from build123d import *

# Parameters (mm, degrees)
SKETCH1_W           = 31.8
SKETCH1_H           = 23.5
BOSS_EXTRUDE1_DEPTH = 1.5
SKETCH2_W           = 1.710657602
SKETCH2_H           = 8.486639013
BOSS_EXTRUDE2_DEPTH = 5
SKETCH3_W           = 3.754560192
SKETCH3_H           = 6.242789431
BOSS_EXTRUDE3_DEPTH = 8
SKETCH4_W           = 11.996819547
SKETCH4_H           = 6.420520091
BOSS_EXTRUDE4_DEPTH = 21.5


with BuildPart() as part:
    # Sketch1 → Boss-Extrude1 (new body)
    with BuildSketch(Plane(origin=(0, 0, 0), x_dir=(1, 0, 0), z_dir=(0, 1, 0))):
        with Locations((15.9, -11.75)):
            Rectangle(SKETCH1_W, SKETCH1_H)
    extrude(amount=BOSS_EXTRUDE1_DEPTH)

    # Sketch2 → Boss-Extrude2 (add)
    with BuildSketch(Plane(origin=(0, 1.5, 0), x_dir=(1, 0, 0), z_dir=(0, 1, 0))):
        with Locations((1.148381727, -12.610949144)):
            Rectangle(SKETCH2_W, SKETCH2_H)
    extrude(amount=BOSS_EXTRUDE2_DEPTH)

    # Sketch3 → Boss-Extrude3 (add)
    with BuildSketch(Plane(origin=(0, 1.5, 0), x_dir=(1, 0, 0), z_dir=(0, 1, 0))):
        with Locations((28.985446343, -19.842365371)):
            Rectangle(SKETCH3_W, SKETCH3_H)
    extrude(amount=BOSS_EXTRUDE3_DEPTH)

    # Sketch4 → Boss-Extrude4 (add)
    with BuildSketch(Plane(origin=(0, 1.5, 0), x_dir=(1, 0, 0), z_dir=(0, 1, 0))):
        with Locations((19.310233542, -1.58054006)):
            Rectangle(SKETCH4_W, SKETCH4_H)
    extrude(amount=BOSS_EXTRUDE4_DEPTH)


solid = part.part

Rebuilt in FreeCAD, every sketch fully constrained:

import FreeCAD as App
import Part
import Sketcher
from FreeCAD import Vector

doc = App.newDocument("Part")
params = doc.addObject("Spreadsheet::Sheet", "Params")
for row, (alias, value) in enumerate([
    ("sketch1_width", "31.8 mm"),
    ("sketch1_height", "23.5 mm"),
    ("pad1_length", "1.5 mm"),
    ("pad2_length", "5 mm"),
    ("pad3_length", "8 mm"),
    ("pad4_length", "21.5 mm"),
], start=1):
    params.set(f"A{row}", alias)
    params.set(f"B{row}", "=" + value)
    params.setAlias(f"B{row}", alias)

body = doc.addObject("PartDesign::Body", "Body")

sketch1 = body.newObject("Sketcher::SketchObject", "Sketch")
sketch1.AttachmentSupport = (doc.getObject("XZ_Plane"), [""])
sketch1.MapMode = "FlatFace"
sketch1.addGeometry(Part.LineSegment(Vector(0, 0, 0), Vector(0, 24, 0)), False)
sketch1.addGeometry(Part.LineSegment(Vector(0, 24, 0), Vector(32, 24, 0)), False)
sketch1.addGeometry(Part.LineSegment(Vector(32, 24, 0), Vector(32, 0, 0)), False)
sketch1.addGeometry(Part.LineSegment(Vector(32, 0, 0), Vector(0, 0, 0)), False)
sketch1.addConstraint(Sketcher.Constraint("Coincident", 0, 2, 1, 1))
sketch1.addConstraint(Sketcher.Constraint("Coincident", 1, 2, 2, 1))
sketch1.addConstraint(Sketcher.Constraint("Coincident", 2, 2, 3, 1))
sketch1.addConstraint(Sketcher.Constraint("Coincident", 3, 2, 0, 1))
sketch1.addConstraint(Sketcher.Constraint("Vertical", 0))
sketch1.addConstraint(Sketcher.Constraint("Horizontal", 1))
sketch1.addConstraint(Sketcher.Constraint("Vertical", 2))
sketch1.addConstraint(Sketcher.Constraint("Horizontal", 3))
sketch1.addConstraint(Sketcher.Constraint("Coincident", 3, 2, -1, 1))
sketch1.addConstraint(Sketcher.Constraint("DistanceX", 1, 1, 1, 2, 31.8))
sketch1.addConstraint(Sketcher.Constraint("DistanceY", 0, 1, 0, 2, 23.5))
sketch1.setExpression("Constraints[9]", "Params.sketch1_width")
sketch1.setExpression("Constraints[10]", "Params.sketch1_height")
pad1 = body.newObject("PartDesign::Pad", "Pad")
pad1.Profile = sketch1
pad1.setExpression("Length", "Params.pad1_length")
pad1.Reversed = True

sketch2 = body.newObject("Sketcher::SketchObject", "Sketch001")
sketch2.AttachmentSupport = (doc.getObject("XZ_Plane"), [""])
sketch2.MapMode = "FlatFace"
sketch2.AttachmentOffset = App.Placement(Vector(0, 0, -1.5), App.Rotation())
sketch2.addGeometry(Part.LineSegment(Vector(0.3, 8.4, 0), Vector(0.3, 16.9, 0)), False)
sketch2.addGeometry(Part.LineSegment(Vector(0.3, 16.9, 0), Vector(2, 16.9, 0)), False)
sketch2.addGeometry(Part.LineSegment(Vector(2, 16.9, 0), Vector(2, 8.4, 0)), False)
sketch2.addGeometry(Part.LineSegment(Vector(2, 8.4, 0), Vector(0.3, 8.4, 0)), False)
sketch2.addConstraint(Sketcher.Constraint("Coincident", 0, 2, 1, 1))
sketch2.addConstraint(Sketcher.Constraint("Coincident", 1, 2, 2, 1))
sketch2.addConstraint(Sketcher.Constraint("Coincident", 2, 2, 3, 1))
sketch2.addConstraint(Sketcher.Constraint("Coincident", 3, 2, 0, 1))
sketch2.addConstraint(Sketcher.Constraint("Vertical", 0))
sketch2.addConstraint(Sketcher.Constraint("Horizontal", 1))
sketch2.addConstraint(Sketcher.Constraint("Vertical", 2))
sketch2.addConstraint(Sketcher.Constraint("Horizontal", 3))
sketch2.addConstraint(Sketcher.Constraint("DistanceY", 0, 1, 0, 2, 8.486639))
sketch2.addConstraint(Sketcher.Constraint("DistanceX", 1, 1, 1, 2, 1.710658))
sketch2.addConstraint(Sketcher.Constraint("DistanceY", -1, 1, 0, 2, 16.854269))
sketch2.addConstraint(Sketcher.Constraint("DistanceX", -1, 1, 1, 2, 2.003711))
pad2 = body.newObject("PartDesign::Pad", "Pad001")
pad2.Profile = sketch2
pad2.setExpression("Length", "Params.pad2_length")
pad2.Reversed = True

sketch3 = body.newObject("Sketcher::SketchObject", "Sketch002")
sketch3.AttachmentSupport = (doc.getObject("XZ_Plane"), [""])
sketch3.MapMode = "FlatFace"
sketch3.AttachmentOffset = App.Placement(Vector(0, 0, -1.5), App.Rotation())
sketch3.addGeometry(Part.LineSegment(Vector(27.1, 16.7, 0), Vector(27.1, 23, 0)), False)
sketch3.addGeometry(Part.LineSegment(Vector(27.1, 23, 0), Vector(30.9, 23, 0)), False)
sketch3.addGeometry(Part.LineSegment(Vector(30.9, 23, 0), Vector(30.9, 16.7, 0)), False)
sketch3.addGeometry(Part.LineSegment(Vector(30.9, 16.7, 0), Vector(27.1, 16.7, 0)), False)
sketch3.addConstraint(Sketcher.Constraint("Coincident", 0, 2, 1, 1))
sketch3.addConstraint(Sketcher.Constraint("Coincident", 1, 2, 2, 1))
sketch3.addConstraint(Sketcher.Constraint("Coincident", 2, 2, 3, 1))
sketch3.addConstraint(Sketcher.Constraint("Coincident", 3, 2, 0, 1))
sketch3.addConstraint(Sketcher.Constraint("Vertical", 0))
sketch3.addConstraint(Sketcher.Constraint("Horizontal", 1))
sketch3.addConstraint(Sketcher.Constraint("Vertical", 2))
sketch3.addConstraint(Sketcher.Constraint("Horizontal", 3))
sketch3.addConstraint(Sketcher.Constraint("DistanceX", 1, 1, 1, 2, 3.75456))
sketch3.addConstraint(Sketcher.Constraint("DistanceY", 0, 1, 0, 2, 6.242789))
sketch3.addConstraint(Sketcher.Constraint("DistanceY", -1, 1, 0, 2, 22.96376))
sketch3.addConstraint(Sketcher.Constraint("DistanceX", -1, 1, 0, 2, 27.108166))
pad3 = body.newObject("PartDesign::Pad", "Pad002")
pad3.Profile = sketch3
pad3.setExpression("Length", "Params.pad3_length")
pad3.Reversed = True

sketch4 = body.newObject("Sketcher::SketchObject", "Sketch003")
sketch4.AttachmentSupport = (doc.getObject("XZ_Plane"), [""])
sketch4.MapMode = "FlatFace"
sketch4.AttachmentOffset = App.Placement(Vector(0, 0, -1.5), App.Rotation())
sketch4.addGeometry(Part.LineSegment(Vector(13, -2, 0), Vector(13, 5, 0)), False)
sketch4.addGeometry(Part.LineSegment(Vector(13, 5, 0), Vector(25, 5, 0)), False)
sketch4.addGeometry(Part.LineSegment(Vector(25, 5, 0), Vector(25, -2, 0)), False)
sketch4.addGeometry(Part.LineSegment(Vector(25, -2, 0), Vector(13, -2, 0)), False)
sketch4.addConstraint(Sketcher.Constraint("Coincident", 0, 2, 1, 1))
sketch4.addConstraint(Sketcher.Constraint("Coincident", 1, 2, 2, 1))
sketch4.addConstraint(Sketcher.Constraint("Coincident", 2, 2, 3, 1))
sketch4.addConstraint(Sketcher.Constraint("Coincident", 3, 2, 0, 1))
sketch4.addConstraint(Sketcher.Constraint("Vertical", 0))
sketch4.addConstraint(Sketcher.Constraint("Horizontal", 1))
sketch4.addConstraint(Sketcher.Constraint("Vertical", 2))
sketch4.addConstraint(Sketcher.Constraint("Horizontal", 3))
sketch4.addConstraint(Sketcher.Constraint("DistanceX", 1, 1, 1, 2, 11.99682))
sketch4.addConstraint(Sketcher.Constraint("DistanceY", 0, 1, 0, 2, 6.42052))
sketch4.addConstraint(Sketcher.Constraint("DistanceY", -1, 1, 0, 2, 4.7908))
sketch4.addConstraint(Sketcher.Constraint("DistanceX", -1, 1, 0, 2, 13.311824))
pad4 = body.newObject("PartDesign::Pad", "Pad003")
pad4.Profile = sketch4
pad4.setExpression("Length", "Params.pad4_length")
pad4.Reversed = True

doc.recompute()
